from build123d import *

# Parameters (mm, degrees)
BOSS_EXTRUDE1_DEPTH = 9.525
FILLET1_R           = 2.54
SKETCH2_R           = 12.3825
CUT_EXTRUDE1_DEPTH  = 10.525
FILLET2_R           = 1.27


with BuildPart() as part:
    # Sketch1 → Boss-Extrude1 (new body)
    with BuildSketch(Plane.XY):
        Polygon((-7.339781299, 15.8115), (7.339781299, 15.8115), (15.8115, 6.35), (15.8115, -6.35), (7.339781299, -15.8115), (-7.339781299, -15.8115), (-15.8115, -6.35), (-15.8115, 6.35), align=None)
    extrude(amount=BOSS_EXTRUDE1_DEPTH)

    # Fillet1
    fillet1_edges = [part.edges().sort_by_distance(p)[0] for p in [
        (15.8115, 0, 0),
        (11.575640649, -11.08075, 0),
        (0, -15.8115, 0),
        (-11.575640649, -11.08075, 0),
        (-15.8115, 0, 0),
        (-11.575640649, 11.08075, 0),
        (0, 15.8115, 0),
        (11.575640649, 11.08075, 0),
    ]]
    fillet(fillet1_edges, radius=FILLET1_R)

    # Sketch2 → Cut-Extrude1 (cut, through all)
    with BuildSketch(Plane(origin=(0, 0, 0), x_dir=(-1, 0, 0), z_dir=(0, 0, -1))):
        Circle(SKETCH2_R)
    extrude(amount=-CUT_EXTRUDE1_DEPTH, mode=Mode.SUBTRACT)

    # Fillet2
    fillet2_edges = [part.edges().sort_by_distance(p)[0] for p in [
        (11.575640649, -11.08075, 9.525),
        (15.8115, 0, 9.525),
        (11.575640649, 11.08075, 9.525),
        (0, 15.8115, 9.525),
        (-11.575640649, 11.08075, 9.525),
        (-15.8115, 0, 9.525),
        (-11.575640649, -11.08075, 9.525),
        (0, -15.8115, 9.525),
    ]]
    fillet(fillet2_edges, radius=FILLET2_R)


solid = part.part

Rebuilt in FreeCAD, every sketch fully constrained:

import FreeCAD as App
import Part
import Sketcher

V = App.Vector
Q = App.Units.Quantity


def edges_at(feature, points):
    """Names of the edges that pass closest to the given points."""
    edges = feature.Shape.Edges
    near = lambda p: min(range(len(edges)), key=lambda i: edges[i].distToShape(Part.Vertex(*p))[0])
    return sorted({f"Edge{near(p) + 1}" for p in points})

doc = App.newDocument("Part")
body = doc.addObject("PartDesign::Body", "Body")

sketch1 = body.newObject("Sketcher::SketchObject", "Sketch")
sketch1.AttachmentSupport = (doc.getObject("XY_Plane"), [""])
sketch1.MapMode = "FlatFace"
sketch1.addGeometry(Part.LineSegment(V(7, 16, 0), V(-7, 16, 0)), False)
sketch1.addGeometry(Part.LineSegment(V(-7, 16, 0), V(-16, 6, 0)), False)
sketch1.addGeometry(Part.LineSegment(V(-16, 6, 0), V(-16, -6, 0)), False)
sketch1.addGeometry(Part.LineSegment(V(-16, -6, 0), V(-7, -16, 0)), False)
sketch1.addGeometry(Part.LineSegment(V(-7, -16, 0), V(7, -16, 0)), False)
sketch1.addGeometry(Part.LineSegment(V(7, -16, 0), V(16, -6, 0)), False)
sketch1.addGeometry(Part.LineSegment(V(16, -6, 0), V(16, 6, 0)), False)
sketch1.addGeometry(Part.LineSegment(V(16, 6, 0), V(7, 16, 0)), False)
sketch1.addConstraint(Sketcher.Constraint("Coincident", 0, 2, 1, 1))
sketch1.addConstraint(Sketcher.Constraint("Coincident", 1, 2, 2, 1))
sketch1.addConstraint(Sketcher.Constraint("Coincident", 2, 2, 3, 1))
sketch1.addConstraint(Sketcher.Constraint("Coincident", 3, 2, 4, 1))
sketch1.addConstraint(Sketcher.Constraint("Coincident", 4, 2, 5, 1))
sketch1.addConstraint(Sketcher.Constraint("Coincident", 5, 2, 6, 1))
sketch1.addConstraint(Sketcher.Constraint("Coincident", 6, 2, 7, 1))
sketch1.addConstraint(Sketcher.Constraint("Coincident", 7, 2, 0, 1))
sketch1.addConstraint(Sketcher.Constraint("Horizontal", 0))
sketch1.addConstraint(Sketcher.Constraint("Vertical", 2))
sketch1.addConstraint(Sketcher.Constraint("Horizontal", 4))
sketch1.addConstraint(Sketcher.Constraint("Vertical", 6))
sketch1.addConstraint(Sketcher.Constraint("Symmetric", 0, 2, 4, 2, -1, 1))
sketch1.addConstraint(Sketcher.Constraint("Symmetric", 1, 2, 5, 2, -1, 1))
sketch1.addConstraint(Sketcher.Constraint("Parallel", 3, 7))
sketch1.addConstraint(Sketcher.Constraint("Horizontal", 2, 2, 5, 2))
sketch1.addConstraint(Sketcher.Constraint("Horizontal", 1, 2, 6, 2))
sketch1.addConstraint(Sketcher.Constraint("Vertical", 0, 2, 3, 2))
sketch1.addConstraint(Sketcher.Constraint("DistanceY", 2, 2, 2, 1, Q("0.5 in")))
sketch1.addConstraint(Sketcher.Constraint("Distance", 1, Q("0.5 in")))
sketch1.addConstraint(Sketcher.Constraint("DistanceY", 3, 2, 0, 2, Q("1.245 in")))
sketch1.addConstraint(Sketcher.Constraint("DistanceX", 2, 2, 5, 2, Q("1.245 in")))
pad1 = body.newObject("PartDesign::Pad", "Pad")
pad1.Profile = sketch1
pad1.Length = Q("0.375 in")
doc.recompute()

fillet = body.newObject("PartDesign::Fillet", "Fillet")
fillet.Base = (pad1, edges_at(pad1, [
    (15.812, 0, 0),
    (11.576, -11.081, 0),
    (0, -15.812, 0),
    (-11.576, -11.081, 0),
    (-15.812, 0, 0),
    (-11.576, 11.081, 0),
    (0, 15.812, 0),
    (11.576, 11.081, 0),
]))
fillet.Radius = Q("0.1 in")

sketch2 = body.newObject("Sketcher::SketchObject", "Sketch001")
sketch2.AttachmentSupport = (doc.getObject("XY_Plane"), [""])
sketch2.MapMode = "FlatFace"
sketch2.addGeometry(Part.Circle(V(0, 0, 0), V(0, 0, 1), 12), False)
sketch2.addConstraint(Sketcher.Constraint("Coincident", 0, 3, -1, 1))
sketch2.addConstraint(Sketcher.Constraint("Diameter", 0, Q("0.975 in")))
pocket1 = body.newObject("PartDesign::Pocket", "Pocket")
pocket1.Profile = sketch2
pocket1.Type = "ThroughAll"
pocket1.Reversed = True
doc.recompute()

fillet2 = body.newObject("PartDesign::Fillet", "Fillet001")
fillet2.Base = (pocket1, edges_at(pocket1, [
    (11.576, -11.081, 9.525),
    (15.812, 0, 9.525),
    (11.576, 11.081, 9.525),
    (0, 15.812, 9.525),
    (-11.576, 11.081, 9.525),
    (-15.812, 0, 9.525),
    (-11.576, -11.081, 9.525),
    (0, -15.812, 9.525),
]))
fillet2.Radius = Q("0.05 in")

doc.recompute()
